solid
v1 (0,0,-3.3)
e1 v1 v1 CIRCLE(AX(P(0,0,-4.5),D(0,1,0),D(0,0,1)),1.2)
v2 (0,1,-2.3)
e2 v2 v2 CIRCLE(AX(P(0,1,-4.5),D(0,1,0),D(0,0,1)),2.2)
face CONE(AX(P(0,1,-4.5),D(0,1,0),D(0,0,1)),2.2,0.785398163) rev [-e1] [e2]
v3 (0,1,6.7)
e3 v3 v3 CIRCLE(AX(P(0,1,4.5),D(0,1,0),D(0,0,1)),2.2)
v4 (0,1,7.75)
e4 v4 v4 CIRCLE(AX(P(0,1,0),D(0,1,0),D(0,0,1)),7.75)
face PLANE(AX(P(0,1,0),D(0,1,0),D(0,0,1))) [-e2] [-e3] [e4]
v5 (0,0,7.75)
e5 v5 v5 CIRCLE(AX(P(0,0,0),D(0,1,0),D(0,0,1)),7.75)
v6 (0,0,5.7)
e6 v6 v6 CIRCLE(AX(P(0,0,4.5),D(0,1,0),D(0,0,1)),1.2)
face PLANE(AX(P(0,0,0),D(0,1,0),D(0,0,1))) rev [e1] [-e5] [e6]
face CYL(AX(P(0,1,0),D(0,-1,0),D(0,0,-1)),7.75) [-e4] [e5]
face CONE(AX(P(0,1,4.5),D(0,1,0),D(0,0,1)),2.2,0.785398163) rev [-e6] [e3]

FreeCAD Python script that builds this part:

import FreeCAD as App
import Part
import Sketcher
from FreeCAD import Vector
Q = App.Units.Quantity

doc = App.newDocument("Part")
params = doc.addObject("Spreadsheet::Sheet", "Params")
for row, (alias, value) in enumerate([
    ("sketch1_diameter", "15.5 mm"),
    ("pad1_length", "1 mm"),
    ("sketch2_diameter", "2.4 mm"),
    ("hole_diameter", "2.4 mm"),
    ("hole_depth", "2 mm"),
    ("hole_csink_diameter", "4.4 mm"),
], start=1):
    params.set(f"A{row}", alias)
    params.set(f"B{row}", "=" + value)
    params.setAlias(f"B{row}", alias)

body = doc.addObject("PartDesign::Body", "Body")

# Sketch on XZ plane
sketch1 = body.newObject("Sketcher::SketchObject", "Sketch")
sketch1.AttachmentSupport = (doc.getObject("XZ_Plane"), [""])
sketch1.MapMode = "FlatFace"
sketch1.addGeometry(Part.Circle(Vector(0, 0, 0), Vector(0, 0, 1), 8), False)
sketch1.addConstraint([
    Sketcher.Constraint("Coincident", 0, 3, -1, 1),
    Sketcher.Constraint("Diameter", 0, Q("15.5 mm")),
])
sketch1.setExpression("Constraints[1]", "Params.sketch1_diameter")
pad1 = body.newObject("PartDesign::Pad", "Pad")
pad1.Profile = sketch1
pad1.setExpression("Length", "Params.pad1_length")
pad1.Reversed = True

# Sketch on XZ plane
sketch2 = body.newObject("Sketcher::SketchObject", "Sketch001")
sketch2.AttachmentSupport = (doc.getObject("XZ_Plane"), [""])
sketch2.MapMode = "FlatFace"
sketch2.AttachmentOffset = App.Placement(Vector(0, 0, -1), App.Rotation())
sketch2.addGeometry([
    Part.Circle(Vector(0, 4.5, 0), Vector(0, 0, 1), 1.2),
    Part.Circle(Vector(0, -4.5, 0), Vector(0, 0, 1), 1.2),
], False)
sketch2.addConstraint([
    Sketcher.Constraint("Equal", 0, 1),
    Sketcher.Constraint("Symmetric", 0, 3, 1, 3, -1, 1),
    Sketcher.Constraint("PointOnObject", 0, 3, -2),
    Sketcher.Constraint("Diameter", 0, Q("2.4 mm")),
    Sketcher.Constraint("DistanceY", 1, 3, 0, 3, Q("9 mm")),
])
sketch2.setExpression("Constraints[3]", "Params.sketch2_diameter")
doc.recompute()
hole = body.newObject("PartDesign::Hole", "Hole")
hole.Profile = sketch2
hole.ThreadType = "None"
hole.setExpression("Diameter", "Params.hole_diameter")
hole.DepthType = "Dimension"
hole.setExpression("Depth", "Params.hole_depth")
hole.DrillPoint = "Angled"
hole.DrillPointAngle = 118
hole.HoleCutType = "Countersink"
hole.setExpression("HoleCutDiameter", "Params.hole_csink_diameter")
hole.HoleCutCountersinkAngle = 90
hole.Reversed = True

doc.recompute()
